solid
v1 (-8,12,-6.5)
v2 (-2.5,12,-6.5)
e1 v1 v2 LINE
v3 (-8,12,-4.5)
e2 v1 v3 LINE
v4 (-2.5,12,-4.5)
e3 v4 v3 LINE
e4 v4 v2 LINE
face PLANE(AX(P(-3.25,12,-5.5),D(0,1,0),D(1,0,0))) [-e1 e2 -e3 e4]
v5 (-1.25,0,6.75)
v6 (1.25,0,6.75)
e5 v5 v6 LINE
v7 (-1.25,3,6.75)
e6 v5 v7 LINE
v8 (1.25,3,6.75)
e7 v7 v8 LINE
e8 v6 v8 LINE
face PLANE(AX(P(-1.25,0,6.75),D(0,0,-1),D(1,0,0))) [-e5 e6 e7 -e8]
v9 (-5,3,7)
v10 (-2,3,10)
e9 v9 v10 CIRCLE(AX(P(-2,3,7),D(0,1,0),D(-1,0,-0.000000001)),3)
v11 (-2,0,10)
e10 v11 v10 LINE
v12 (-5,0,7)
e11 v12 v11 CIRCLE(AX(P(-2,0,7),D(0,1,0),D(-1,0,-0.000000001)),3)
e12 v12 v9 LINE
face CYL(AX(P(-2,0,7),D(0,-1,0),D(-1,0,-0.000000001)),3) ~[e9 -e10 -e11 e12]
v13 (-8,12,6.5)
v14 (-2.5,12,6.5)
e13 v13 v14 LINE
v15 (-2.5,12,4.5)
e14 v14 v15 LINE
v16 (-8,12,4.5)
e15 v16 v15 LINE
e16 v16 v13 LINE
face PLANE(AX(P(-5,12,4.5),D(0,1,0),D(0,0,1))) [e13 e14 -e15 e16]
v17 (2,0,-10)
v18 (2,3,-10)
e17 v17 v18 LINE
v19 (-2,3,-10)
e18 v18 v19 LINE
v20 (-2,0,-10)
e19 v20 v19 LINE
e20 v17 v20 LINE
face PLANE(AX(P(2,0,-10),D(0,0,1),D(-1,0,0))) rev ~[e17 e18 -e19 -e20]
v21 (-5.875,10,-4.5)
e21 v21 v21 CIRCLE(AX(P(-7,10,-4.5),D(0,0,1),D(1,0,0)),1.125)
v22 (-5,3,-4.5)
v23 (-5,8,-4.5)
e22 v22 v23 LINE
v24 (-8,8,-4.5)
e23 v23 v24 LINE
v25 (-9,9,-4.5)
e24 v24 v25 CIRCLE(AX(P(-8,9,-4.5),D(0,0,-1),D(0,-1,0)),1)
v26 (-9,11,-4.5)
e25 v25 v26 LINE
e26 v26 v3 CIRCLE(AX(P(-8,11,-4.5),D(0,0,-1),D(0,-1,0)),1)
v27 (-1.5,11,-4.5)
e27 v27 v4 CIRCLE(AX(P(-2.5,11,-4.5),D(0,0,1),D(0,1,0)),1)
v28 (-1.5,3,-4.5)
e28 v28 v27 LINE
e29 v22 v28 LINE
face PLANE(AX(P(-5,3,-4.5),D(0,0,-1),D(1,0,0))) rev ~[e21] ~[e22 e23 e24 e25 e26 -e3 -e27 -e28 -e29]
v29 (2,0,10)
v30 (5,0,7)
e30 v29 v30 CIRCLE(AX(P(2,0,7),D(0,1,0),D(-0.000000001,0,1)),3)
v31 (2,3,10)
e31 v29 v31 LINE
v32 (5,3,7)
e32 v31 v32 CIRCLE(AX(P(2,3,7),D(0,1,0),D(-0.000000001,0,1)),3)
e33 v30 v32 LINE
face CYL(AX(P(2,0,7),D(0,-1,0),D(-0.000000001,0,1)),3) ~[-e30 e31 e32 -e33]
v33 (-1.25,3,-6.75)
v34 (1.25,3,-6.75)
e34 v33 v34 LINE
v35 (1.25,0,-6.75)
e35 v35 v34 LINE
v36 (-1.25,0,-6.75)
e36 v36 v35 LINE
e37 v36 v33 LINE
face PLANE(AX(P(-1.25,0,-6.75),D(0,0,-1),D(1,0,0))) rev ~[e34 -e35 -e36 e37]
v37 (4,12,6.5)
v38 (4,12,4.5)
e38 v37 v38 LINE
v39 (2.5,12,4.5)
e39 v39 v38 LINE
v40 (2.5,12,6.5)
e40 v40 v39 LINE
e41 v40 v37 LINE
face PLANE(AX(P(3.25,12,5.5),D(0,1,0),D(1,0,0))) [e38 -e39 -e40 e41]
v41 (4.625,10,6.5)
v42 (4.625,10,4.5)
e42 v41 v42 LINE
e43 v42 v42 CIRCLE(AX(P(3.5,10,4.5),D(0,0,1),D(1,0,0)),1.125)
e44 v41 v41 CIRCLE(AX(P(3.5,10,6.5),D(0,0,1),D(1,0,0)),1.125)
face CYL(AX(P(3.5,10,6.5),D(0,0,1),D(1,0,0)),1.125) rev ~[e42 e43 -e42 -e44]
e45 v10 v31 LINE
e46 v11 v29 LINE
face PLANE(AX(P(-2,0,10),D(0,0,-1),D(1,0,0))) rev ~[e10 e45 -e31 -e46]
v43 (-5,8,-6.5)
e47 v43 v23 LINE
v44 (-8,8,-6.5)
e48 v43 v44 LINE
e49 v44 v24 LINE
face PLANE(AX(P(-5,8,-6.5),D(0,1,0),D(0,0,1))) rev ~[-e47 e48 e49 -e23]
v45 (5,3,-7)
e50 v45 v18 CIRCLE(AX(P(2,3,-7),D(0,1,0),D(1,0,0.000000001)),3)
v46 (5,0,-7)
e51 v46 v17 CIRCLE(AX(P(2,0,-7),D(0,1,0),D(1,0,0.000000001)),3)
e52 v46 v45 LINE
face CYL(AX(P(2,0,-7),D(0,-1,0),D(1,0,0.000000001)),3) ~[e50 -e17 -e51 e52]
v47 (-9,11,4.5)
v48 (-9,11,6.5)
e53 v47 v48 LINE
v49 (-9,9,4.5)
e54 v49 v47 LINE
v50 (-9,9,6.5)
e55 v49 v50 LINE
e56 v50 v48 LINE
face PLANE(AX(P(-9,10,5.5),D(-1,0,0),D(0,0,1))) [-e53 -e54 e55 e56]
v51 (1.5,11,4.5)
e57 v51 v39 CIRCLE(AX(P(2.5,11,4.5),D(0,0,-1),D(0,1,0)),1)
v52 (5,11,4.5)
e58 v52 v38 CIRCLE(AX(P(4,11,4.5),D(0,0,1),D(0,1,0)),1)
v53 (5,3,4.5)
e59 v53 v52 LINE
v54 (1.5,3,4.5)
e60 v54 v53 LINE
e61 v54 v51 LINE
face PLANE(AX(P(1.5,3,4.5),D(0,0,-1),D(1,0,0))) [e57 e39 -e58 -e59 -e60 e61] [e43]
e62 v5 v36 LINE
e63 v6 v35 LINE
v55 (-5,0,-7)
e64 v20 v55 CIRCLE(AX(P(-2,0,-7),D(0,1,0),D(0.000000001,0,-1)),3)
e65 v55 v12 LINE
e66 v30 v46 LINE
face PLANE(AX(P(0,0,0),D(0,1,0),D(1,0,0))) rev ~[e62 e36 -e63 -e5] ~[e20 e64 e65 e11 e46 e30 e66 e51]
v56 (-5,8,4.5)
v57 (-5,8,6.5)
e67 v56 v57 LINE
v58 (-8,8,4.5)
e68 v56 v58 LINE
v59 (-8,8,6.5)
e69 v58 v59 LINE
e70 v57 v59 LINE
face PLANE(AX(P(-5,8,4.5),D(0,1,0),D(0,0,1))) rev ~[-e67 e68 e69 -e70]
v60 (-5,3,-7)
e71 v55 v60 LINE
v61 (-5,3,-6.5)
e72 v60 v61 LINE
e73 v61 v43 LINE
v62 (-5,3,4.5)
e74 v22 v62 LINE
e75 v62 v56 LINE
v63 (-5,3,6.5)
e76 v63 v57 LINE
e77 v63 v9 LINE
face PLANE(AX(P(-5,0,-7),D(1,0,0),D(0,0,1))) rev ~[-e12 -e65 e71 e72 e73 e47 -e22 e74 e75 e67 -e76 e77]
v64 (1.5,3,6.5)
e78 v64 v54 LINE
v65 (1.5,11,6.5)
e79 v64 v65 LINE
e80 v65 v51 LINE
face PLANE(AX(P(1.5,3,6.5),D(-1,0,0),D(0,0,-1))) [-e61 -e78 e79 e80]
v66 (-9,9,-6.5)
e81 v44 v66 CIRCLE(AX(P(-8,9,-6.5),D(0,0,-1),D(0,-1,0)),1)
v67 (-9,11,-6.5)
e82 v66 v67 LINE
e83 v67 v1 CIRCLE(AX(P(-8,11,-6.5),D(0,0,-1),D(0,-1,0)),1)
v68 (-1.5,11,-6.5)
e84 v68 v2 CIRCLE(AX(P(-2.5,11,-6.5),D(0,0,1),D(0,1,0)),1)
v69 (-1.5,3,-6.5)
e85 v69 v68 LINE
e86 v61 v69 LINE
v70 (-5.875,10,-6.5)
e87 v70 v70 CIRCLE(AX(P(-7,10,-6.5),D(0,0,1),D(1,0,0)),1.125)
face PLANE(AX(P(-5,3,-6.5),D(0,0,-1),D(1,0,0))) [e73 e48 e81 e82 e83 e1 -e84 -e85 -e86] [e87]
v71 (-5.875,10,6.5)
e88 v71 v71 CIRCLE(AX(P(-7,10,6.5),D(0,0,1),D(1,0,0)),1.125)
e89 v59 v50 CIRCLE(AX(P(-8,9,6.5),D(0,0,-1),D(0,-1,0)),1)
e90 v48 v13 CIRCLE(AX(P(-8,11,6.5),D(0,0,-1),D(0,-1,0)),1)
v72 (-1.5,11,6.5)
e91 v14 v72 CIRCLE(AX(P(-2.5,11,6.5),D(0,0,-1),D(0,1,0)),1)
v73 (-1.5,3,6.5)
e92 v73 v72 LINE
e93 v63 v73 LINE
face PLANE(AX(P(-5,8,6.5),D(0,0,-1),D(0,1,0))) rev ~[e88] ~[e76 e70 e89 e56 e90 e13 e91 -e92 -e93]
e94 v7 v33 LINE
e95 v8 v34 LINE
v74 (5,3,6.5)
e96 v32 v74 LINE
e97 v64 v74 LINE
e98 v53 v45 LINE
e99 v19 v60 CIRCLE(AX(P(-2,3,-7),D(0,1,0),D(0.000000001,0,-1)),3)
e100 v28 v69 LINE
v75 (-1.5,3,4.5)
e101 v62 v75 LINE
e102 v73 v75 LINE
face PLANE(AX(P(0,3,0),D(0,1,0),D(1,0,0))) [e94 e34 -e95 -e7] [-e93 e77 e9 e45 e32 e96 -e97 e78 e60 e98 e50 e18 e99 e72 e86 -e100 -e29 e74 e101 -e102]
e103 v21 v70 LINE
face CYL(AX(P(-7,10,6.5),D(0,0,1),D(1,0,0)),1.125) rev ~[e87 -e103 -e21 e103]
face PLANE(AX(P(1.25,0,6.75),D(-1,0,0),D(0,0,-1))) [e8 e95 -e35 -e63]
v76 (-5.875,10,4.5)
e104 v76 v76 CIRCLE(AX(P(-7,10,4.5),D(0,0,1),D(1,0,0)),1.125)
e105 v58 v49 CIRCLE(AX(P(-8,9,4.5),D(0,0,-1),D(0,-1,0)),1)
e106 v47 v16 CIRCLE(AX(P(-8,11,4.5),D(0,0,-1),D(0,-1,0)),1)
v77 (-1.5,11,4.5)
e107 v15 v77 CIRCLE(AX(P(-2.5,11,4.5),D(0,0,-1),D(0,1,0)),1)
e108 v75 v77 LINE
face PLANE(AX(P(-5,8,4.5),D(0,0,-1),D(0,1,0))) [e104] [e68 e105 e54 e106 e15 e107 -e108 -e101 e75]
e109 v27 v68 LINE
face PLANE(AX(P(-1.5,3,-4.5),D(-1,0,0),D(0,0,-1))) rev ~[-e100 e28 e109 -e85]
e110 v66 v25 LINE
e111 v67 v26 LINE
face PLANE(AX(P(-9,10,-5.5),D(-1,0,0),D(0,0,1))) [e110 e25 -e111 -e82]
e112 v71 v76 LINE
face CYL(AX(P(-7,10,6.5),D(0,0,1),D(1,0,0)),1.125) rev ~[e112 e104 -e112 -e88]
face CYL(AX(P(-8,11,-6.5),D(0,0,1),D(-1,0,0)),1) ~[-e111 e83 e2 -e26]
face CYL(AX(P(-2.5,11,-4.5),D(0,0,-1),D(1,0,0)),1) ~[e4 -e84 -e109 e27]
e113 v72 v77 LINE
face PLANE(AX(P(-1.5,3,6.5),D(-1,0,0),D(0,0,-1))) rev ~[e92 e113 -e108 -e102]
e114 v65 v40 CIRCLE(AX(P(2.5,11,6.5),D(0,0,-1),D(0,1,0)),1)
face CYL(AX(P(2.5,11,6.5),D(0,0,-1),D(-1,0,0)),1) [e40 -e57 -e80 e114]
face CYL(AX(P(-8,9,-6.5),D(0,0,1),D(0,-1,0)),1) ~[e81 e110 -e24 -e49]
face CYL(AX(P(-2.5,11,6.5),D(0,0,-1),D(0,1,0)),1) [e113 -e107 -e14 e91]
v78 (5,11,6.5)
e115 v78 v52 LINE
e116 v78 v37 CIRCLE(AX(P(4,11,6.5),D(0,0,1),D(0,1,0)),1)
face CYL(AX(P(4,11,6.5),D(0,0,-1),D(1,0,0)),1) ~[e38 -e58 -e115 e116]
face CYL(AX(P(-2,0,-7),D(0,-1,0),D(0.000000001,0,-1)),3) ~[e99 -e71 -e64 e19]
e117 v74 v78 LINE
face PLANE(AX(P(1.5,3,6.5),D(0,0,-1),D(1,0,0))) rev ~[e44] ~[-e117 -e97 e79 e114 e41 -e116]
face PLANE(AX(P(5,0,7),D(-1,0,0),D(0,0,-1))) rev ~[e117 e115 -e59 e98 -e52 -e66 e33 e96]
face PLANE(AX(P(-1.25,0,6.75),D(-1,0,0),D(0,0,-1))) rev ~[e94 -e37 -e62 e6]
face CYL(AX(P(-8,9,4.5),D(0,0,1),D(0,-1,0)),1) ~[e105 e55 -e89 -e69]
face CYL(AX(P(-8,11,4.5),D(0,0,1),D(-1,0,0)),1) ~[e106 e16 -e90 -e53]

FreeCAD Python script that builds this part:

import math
import FreeCAD as App
import Part
import Sketcher
from FreeCAD import Vector


def edges_at(feature, points):
    """Names of the edges that pass closest to the given points."""
    edges = feature.Shape.Edges
    near = lambda p: min(range(len(edges)), key=lambda i: edges[i].distToShape(Part.Vertex(*p))[0])
    return sorted({f"Edge{near(p) + 1}" for p in points})


def add_polygon(sketch, points):
    """Adds a closed chain of lines whose ends are joined by coincident constraints."""
    first, n = sketch.GeometryCount, len(points)
    for a, b in zip(points, points[1:] + points[:1]):
        sketch.addGeometry(Part.LineSegment(App.Vector(*a, 0), App.Vector(*b, 0)), False)
    for i in range(n):
        sketch.addConstraint(Sketcher.Constraint("Coincident", first + i, 2, first + (i + 1) % n, 1))

doc = App.newDocument("Part")
body = doc.addObject("PartDesign::Body", "Body")

# Sketch on XZ plane
sketch1 = doc.addObject("Sketcher::SketchObject", "Sketch")
body.addObject(sketch1)
sketch1.AttachmentSupport = (doc.XZ_Plane, [""])
sketch1.MapMode = "FlatFace"
sketch1.addGeometry(Part.LineSegment(Vector(-2, 10, 0), Vector(2, 10, 0)), False)  # 0
sketch1.addGeometry(Part.ArcOfCircle(Part.Circle(Vector(2, 7, 0), Vector(0, 0, 1), 3), math.radians(0), math.radians(90)), False)  # 1
sketch1.addGeometry(Part.LineSegment(Vector(5, 7, 0), Vector(5, -7, 0)), False)  # 2
sketch1.addGeometry(Part.ArcOfCircle(Part.Circle(Vector(2, -7, 0), Vector(0, 0, 1), 3), math.radians(-90), math.radians(0)), False)  # 3
sketch1.addGeometry(Part.LineSegment(Vector(2, -10, 0), Vector(-2, -10, 0)), False)  # 4
sketch1.addGeometry(Part.ArcOfCircle(Part.Circle(Vector(-2, -7, 0), Vector(0, 0, 1), 3), math.radians(180), math.radians(270)), False)  # 5
sketch1.addGeometry(Part.LineSegment(Vector(-5, -7, 0), Vector(-5, 7, 0)), False)  # 6
sketch1.addGeometry(Part.ArcOfCircle(Part.Circle(Vector(-2, 7, 0), Vector(0, 0, 1), 3), math.radians(90), math.radians(180)), False)  # 7
add_polygon(sketch1, [(1.2, 6.8), (-1.2, 6.8), (-1.2, -6.8), (1.2, -6.8)])  # lines 8-11
sketch1.addConstraint(Sketcher.Constraint("Tangent", 0, 2, 1, 2))
sketch1.addConstraint(Sketcher.Constraint("Tangent", 1, 1, 2, 1))
sketch1.addConstraint(Sketcher.Constraint("Tangent", 2, 2, 3, 2))
sketch1.addConstraint(Sketcher.Constraint("Tangent", 3, 1, 4, 1))
sketch1.addConstraint(Sketcher.Constraint("Tangent", 4, 2, 5, 2))
sketch1.addConstraint(Sketcher.Constraint("Tangent", 5, 1, 6, 1))
sketch1.addConstraint(Sketcher.Constraint("Tangent", 6, 2, 7, 2))
sketch1.addConstraint(Sketcher.Constraint("Tangent", 7, 1, 0, 1))
sketch1.addConstraint(Sketcher.Constraint("Horizontal", 0))
sketch1.addConstraint(Sketcher.Constraint("Vertical", 2))
sketch1.addConstraint(Sketcher.Constraint("Horizontal", 4))
sketch1.addConstraint(Sketcher.Constraint("Vertical", 6))
sketch1.addConstraint(Sketcher.Constraint("Horizontal", 8))
sketch1.addConstraint(Sketcher.Constraint("Vertical", 9))
sketch1.addConstraint(Sketcher.Constraint("Horizontal", 10))
sketch1.addConstraint(Sketcher.Constraint("Vertical", 11))
sketch1.addConstraint(Sketcher.Constraint("Equal", 1, 3))
sketch1.addConstraint(Sketcher.Constraint("Equal", 3, 5))
sketch1.addConstraint(Sketcher.Constraint("Equal", 5, 7))
sketch1.addConstraint(Sketcher.Constraint("Symmetric", 1, 3, 5, 3, -1, 1))
sketch1.addConstraint(Sketcher.Constraint("Symmetric", 8, 2, 10, 2, -1, 1))
sketch1.addConstraint(Sketcher.Constraint("Radius", 1, 3.0))
sketch1.addConstraint(Sketcher.Constraint("DistanceX", 0, 1, 0, 2, 4.0))
sketch1.addConstraint(Sketcher.Constraint("DistanceY", 2, 2, 2, 1, 14.0))
sketch1.addConstraint(Sketcher.Constraint("DistanceX", 8, 2, 8, 1, 2.5))
sketch1.addConstraint(Sketcher.Constraint("DistanceY", 9, 2, 9, 1, 13.5))
pad1 = doc.addObject("PartDesign::Pad", "Pad")
body.addObject(pad1)
pad1.Profile = sketch1
pad1.Length = 3
pad1.Reversed = True

# Sketch on XZ plane
sketch2 = doc.addObject("Sketcher::SketchObject", "Sketch001")
body.addObject(sketch2)
sketch2.AttachmentSupport = (doc.XZ_Plane, [""])
sketch2.MapMode = "FlatFace"
sketch2.AttachmentOffset = App.Placement(Vector(0, 0, -3), App.Rotation())
add_polygon(sketch2, [(-5, -6.5), (-5, -4.5), (-1.5, -4.5), (-1.5, -6.5)])  # lines 0-3
add_polygon(sketch2, [(-5, 4.5), (-5, 6.5), (-1.5, 6.5), (-1.5, 4.5)])  # lines 4-7
add_polygon(sketch2, [(1.5, 4.5), (1.5, 6.5), (5, 6.5), (5, 4.5)])  # lines 8-11
sketch2.addConstraint(Sketcher.Constraint("Vertical", 0))
sketch2.addConstraint(Sketcher.Constraint("Horizontal", 1))
sketch2.addConstraint(Sketcher.Constraint("Vertical", 2))
sketch2.addConstraint(Sketcher.Constraint("Horizontal", 3))
sketch2.addConstraint(Sketcher.Constraint("Vertical", 4))
sketch2.addConstraint(Sketcher.Constraint("Horizontal", 5))
sketch2.addConstraint(Sketcher.Constraint("Vertical", 6))
sketch2.addConstraint(Sketcher.Constraint("Horizontal", 7))
sketch2.addConstraint(Sketcher.Constraint("Vertical", 8))
sketch2.addConstraint(Sketcher.Constraint("Horizontal", 9))
sketch2.addConstraint(Sketcher.Constraint("Vertical", 10))
sketch2.addConstraint(Sketcher.Constraint("Horizontal", 11))
sketch2.addConstraint(Sketcher.Constraint("Symmetric", 2, 2, 8, 2, -1, 1))
sketch2.addConstraint(Sketcher.Constraint("Symmetric", 0, 2, 10, 2, -1, 1))
sketch2.addConstraint(Sketcher.Constraint("Symmetric", 5, 2, 8, 2, -2))
sketch2.addConstraint(Sketcher.Constraint("Symmetric", 7, 2, 10, 2, -2))
sketch2.addConstraint(Sketcher.Constraint("DistanceY", 0, 1, 0, 2, 2.0))
sketch2.addConstraint(Sketcher.Constraint("DistanceX", 1, 1, 1, 2, 3.5))
sketch2.addConstraint(Sketcher.Constraint("DistanceX", 0, 2, -1, 1, 5.0))
sketch2.addConstraint(Sketcher.Constraint("DistanceY", 0, 2, 4, 2, 11.0))
pad2 = doc.addObject("PartDesign::Pad", "Pad001")
body.addObject(pad2)
pad2.Profile = sketch2
pad2.Length = 9
pad2.Reversed = True

# Sketch on XY plane
sketch3 = doc.addObject("Sketcher::SketchObject", "Sketch002")
body.addObject(sketch3)
sketch3.AttachmentSupport = (doc.XY_Plane, [""])
sketch3.MapMode = "FlatFace"
sketch3.AttachmentOffset = App.Placement(Vector(0, 0, 6.5), App.Rotation())
sketch3.addGeometry(Part.Circle(Vector(3.5, 10, 0), Vector(0, 0, 1), 1.1), False)
sketch3.addConstraint(Sketcher.Constraint("Diameter", 0, 2.25))
sketch3.addConstraint(Sketcher.Constraint("DistanceY", -1, 1, 0, 3, 10.0))
sketch3.addConstraint(Sketcher.Constraint("DistanceX", -1, 1, 0, 3, 3.5))
pocket1 = doc.addObject("PartDesign::Pocket", "Pocket")
body.addObject(pocket1)
pocket1.Profile = sketch3
pocket1.Length = 13

# Sketch on YZ plane
sketch4 = doc.addObject("Sketcher::SketchObject", "Sketch003")
body.addObject(sketch4)
sketch4.AttachmentSupport = (doc.YZ_Plane, [""])
sketch4.MapMode = "FlatFace"
sketch4.AttachmentOffset = App.Placement(Vector(0, 0, -5), App.Rotation())
add_polygon(sketch4, [(12, 4.5), (8, 4.5), (8, 6.5), (12, 6.5)])  # lines 0-3
add_polygon(sketch4, [(12, -6.5), (8, -6.5), (8, -4.5), (12, -4.5)])  # lines 4-7
sketch4.addConstraint(Sketcher.Constraint("Horizontal", 0))
sketch4.addConstraint(Sketcher.Constraint("Vertical", 1))
sketch4.addConstraint(Sketcher.Constraint("Horizontal", 2))
sketch4.addConstraint(Sketcher.Constraint("Vertical", 3))
sketch4.addConstraint(Sketcher.Constraint("Horizontal", 4))
sketch4.addConstraint(Sketcher.Constraint("Vertical", 5))
sketch4.addConstraint(Sketcher.Constraint("Horizontal", 6))
sketch4.addConstraint(Sketcher.Constraint("Vertical", 7))
sketch4.addConstraint(Sketcher.Constraint("Symmetric", 1, 2, 4, 2, -1))
sketch4.addConstraint(Sketcher.Constraint("Symmetric", 3, 2, 6, 2, -1))
sketch4.addConstraint(Sketcher.Constraint("DistanceX", 0, 2, 0, 1, 4.0))
sketch4.addConstraint(Sketcher.Constraint("DistanceY", 1, 1, 1, 2, 2.0))
sketch4.addConstraint(Sketcher.Constraint("DistanceX", -1, 1, 0, 2, 8.0))
sketch4.addConstraint(Sketcher.Constraint("DistanceY", 4, 2, 0, 2, 11.0))
pad3 = doc.addObject("PartDesign::Pad", "Pad002")
body.addObject(pad3)
pad3.Profile = sketch4
pad3.Length = 4
pad3.Reversed = True

# Sketch on XY plane
sketch5 = doc.addObject("Sketcher::SketchObject", "Sketch004")
body.addObject(sketch5)
sketch5.AttachmentSupport = (doc.XY_Plane, [""])
sketch5.MapMode = "FlatFace"
sketch5.AttachmentOffset = App.Placement(Vector(0, 0, 6.5), App.Rotation())
sketch5.addGeometry(Part.Circle(Vector(-7, 10, 0), Vector(0, 0, 1), 1.1), False)
sketch5.addConstraint(Sketcher.Constraint("Diameter", 0, 2.25))
sketch5.addConstraint(Sketcher.Constraint("DistanceX", 0, 3, -1, 1, 7.0))
sketch5.addConstraint(Sketcher.Constraint("DistanceY", -1, 1, 0, 3, 10.0))
pocket2 = doc.addObject("PartDesign::Pocket", "Pocket001")
body.addObject(pocket2)
pocket2.Profile = sketch5
pocket2.Type = "ThroughAll"
doc.recompute()

fillet = doc.addObject("PartDesign::Fillet", "Fillet")
body.addObject(fillet)
fillet.Base = (pocket2, edges_at(pocket2, [
    (-1.5, 12, -5.5),
    (-1.5, 12, 5.5),
    (1.5, 12, 5.5),
    (5, 12, 5.5),
    (-9, 8, 5.5),
    (-9, 12, 5.5),
    (-9, 12, -5.5),
    (-9, 8, -5.5),
]))
fillet.Radius = 1

doc.recompute()
